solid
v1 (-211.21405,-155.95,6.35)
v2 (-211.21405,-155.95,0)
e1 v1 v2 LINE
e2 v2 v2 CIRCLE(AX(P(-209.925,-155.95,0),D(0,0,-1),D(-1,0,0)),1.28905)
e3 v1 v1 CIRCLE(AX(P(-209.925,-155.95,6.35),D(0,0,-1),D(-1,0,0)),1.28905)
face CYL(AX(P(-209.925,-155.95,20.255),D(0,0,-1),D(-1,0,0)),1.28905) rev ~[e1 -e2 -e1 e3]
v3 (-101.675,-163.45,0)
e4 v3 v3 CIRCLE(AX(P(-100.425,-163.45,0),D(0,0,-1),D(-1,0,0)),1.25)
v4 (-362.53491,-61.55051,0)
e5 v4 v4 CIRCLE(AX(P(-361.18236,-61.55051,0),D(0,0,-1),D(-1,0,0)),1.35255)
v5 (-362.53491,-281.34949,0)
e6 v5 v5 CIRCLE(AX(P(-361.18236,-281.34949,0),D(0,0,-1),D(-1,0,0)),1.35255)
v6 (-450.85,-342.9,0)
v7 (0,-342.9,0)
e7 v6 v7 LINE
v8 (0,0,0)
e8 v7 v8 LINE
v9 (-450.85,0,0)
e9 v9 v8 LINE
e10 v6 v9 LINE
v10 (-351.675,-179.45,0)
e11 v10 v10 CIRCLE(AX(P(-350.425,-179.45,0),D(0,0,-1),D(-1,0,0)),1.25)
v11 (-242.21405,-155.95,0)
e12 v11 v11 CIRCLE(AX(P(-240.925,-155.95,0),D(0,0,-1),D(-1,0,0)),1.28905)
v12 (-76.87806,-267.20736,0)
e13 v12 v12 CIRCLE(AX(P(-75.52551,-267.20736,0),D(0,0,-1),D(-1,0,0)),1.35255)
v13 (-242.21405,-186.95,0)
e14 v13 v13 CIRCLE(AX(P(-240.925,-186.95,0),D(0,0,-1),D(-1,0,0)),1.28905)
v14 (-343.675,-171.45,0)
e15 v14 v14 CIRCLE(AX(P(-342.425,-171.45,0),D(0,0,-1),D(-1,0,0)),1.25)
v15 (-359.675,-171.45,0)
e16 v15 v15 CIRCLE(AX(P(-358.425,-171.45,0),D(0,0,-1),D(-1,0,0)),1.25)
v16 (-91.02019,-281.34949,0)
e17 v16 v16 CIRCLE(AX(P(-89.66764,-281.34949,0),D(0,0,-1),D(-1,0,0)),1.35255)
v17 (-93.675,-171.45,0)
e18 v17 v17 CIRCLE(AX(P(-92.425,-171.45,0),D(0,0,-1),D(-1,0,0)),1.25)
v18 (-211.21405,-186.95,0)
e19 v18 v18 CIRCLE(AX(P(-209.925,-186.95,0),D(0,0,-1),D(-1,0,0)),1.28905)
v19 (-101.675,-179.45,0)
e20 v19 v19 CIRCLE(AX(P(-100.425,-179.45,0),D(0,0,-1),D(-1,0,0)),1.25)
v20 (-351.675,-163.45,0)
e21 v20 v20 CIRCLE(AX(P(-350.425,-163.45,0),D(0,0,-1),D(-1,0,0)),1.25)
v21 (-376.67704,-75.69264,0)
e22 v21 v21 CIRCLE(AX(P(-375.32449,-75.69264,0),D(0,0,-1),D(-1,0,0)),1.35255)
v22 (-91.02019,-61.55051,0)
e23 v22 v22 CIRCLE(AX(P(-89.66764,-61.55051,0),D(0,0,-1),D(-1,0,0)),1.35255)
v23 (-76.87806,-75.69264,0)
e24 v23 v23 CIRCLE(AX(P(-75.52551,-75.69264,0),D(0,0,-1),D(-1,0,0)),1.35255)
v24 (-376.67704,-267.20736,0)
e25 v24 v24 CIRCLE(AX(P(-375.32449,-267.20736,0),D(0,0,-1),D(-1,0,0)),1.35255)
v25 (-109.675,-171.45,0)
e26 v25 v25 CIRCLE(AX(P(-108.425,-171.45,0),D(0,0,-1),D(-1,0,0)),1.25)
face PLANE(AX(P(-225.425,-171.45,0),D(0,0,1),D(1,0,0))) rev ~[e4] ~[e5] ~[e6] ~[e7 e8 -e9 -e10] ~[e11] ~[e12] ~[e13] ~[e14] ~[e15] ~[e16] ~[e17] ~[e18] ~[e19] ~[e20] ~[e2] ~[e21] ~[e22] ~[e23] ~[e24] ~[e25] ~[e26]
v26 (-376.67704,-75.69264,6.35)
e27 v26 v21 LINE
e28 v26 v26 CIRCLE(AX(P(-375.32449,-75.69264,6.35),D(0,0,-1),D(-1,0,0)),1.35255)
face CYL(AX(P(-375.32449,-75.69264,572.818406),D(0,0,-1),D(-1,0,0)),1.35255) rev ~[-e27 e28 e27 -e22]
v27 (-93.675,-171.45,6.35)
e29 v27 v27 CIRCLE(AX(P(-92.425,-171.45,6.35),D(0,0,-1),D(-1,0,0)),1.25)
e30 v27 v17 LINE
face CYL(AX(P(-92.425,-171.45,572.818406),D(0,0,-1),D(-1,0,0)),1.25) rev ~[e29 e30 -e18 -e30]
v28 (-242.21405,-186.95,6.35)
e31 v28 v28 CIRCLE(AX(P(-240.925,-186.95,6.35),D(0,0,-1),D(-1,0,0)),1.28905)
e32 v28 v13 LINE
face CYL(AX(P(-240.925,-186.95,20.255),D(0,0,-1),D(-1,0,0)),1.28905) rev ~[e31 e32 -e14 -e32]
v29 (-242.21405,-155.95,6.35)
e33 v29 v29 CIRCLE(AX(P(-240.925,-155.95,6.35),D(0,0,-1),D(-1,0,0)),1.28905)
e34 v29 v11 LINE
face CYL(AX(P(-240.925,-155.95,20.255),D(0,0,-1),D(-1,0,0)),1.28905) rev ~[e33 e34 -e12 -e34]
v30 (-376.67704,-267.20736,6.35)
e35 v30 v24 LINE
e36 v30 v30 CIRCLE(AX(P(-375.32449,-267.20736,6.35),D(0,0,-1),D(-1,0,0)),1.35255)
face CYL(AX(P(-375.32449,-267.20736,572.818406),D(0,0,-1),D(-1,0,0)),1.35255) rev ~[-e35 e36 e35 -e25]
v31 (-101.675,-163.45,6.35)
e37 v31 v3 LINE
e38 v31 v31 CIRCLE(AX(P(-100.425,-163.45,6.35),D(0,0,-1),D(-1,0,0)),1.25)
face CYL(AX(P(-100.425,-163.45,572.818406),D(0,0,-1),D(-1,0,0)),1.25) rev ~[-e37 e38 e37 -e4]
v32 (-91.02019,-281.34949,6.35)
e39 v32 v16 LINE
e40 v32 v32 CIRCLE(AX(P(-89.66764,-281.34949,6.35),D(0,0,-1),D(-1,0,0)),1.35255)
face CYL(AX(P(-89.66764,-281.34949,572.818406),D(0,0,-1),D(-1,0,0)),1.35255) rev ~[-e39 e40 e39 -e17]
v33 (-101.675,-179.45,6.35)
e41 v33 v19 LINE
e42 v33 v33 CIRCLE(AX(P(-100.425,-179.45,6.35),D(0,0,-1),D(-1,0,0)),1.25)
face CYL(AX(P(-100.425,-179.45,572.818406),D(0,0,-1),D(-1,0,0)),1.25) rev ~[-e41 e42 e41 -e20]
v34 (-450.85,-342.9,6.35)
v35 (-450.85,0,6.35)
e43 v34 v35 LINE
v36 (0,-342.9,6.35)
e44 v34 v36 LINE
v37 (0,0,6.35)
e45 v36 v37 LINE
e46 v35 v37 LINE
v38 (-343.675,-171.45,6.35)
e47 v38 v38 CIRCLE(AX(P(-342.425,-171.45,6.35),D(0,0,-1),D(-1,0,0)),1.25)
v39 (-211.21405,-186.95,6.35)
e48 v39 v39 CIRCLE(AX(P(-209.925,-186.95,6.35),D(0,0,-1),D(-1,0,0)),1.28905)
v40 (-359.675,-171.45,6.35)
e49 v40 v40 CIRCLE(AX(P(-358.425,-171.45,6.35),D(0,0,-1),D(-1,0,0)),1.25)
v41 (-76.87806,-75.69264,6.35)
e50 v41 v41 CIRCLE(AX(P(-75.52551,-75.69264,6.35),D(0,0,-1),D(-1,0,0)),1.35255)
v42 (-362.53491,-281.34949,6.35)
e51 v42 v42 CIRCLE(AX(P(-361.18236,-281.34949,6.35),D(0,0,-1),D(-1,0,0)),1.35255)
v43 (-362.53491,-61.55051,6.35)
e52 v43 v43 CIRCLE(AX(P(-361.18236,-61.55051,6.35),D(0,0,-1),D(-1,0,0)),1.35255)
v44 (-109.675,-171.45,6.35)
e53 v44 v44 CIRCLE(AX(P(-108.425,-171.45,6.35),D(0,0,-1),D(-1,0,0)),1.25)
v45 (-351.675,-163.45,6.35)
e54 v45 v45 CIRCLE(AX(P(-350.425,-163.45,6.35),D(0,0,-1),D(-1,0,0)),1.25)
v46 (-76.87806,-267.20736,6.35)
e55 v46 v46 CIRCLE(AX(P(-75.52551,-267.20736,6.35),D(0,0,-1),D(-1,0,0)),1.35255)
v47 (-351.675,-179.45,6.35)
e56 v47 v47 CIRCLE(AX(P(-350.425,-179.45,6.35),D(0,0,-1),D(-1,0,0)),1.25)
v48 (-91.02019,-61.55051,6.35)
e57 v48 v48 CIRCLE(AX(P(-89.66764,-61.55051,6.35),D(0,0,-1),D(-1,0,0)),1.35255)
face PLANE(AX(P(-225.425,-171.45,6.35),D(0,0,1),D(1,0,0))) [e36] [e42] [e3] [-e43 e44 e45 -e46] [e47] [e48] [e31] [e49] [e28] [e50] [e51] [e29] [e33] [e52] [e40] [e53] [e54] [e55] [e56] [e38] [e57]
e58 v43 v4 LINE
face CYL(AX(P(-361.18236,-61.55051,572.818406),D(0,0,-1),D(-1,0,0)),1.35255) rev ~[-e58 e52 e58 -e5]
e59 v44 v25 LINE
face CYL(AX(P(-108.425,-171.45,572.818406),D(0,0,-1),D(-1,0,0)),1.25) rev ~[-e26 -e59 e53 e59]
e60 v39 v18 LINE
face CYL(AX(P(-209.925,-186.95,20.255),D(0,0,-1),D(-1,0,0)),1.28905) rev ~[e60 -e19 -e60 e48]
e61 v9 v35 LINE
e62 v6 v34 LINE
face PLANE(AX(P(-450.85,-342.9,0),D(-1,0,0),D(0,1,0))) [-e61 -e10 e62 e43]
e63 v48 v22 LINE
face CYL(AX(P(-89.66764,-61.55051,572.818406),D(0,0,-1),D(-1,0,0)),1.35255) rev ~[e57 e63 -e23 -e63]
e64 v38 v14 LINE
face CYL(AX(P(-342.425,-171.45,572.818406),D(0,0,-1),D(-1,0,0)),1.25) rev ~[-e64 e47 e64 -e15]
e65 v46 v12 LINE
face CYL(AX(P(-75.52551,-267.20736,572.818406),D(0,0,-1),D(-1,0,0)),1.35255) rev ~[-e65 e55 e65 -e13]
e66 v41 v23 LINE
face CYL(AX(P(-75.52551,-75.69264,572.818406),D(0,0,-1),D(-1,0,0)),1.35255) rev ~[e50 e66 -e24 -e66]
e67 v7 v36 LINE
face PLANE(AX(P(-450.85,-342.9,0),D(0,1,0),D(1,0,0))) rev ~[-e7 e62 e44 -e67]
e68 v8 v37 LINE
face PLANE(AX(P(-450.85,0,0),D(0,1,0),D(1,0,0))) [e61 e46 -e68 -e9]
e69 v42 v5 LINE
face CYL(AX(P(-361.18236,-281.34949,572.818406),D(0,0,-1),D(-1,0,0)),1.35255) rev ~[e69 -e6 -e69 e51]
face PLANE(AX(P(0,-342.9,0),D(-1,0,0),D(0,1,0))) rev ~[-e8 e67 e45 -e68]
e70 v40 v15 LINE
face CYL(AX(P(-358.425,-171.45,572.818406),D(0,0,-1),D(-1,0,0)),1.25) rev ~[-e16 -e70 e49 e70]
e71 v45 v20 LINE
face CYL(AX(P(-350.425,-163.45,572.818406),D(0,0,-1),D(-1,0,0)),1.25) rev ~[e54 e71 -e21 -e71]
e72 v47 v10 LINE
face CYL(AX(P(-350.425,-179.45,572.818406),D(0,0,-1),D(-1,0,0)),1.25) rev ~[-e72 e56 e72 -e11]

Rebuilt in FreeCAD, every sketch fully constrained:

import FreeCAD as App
import Part
import Sketcher
Q = App.Units.Quantity

doc = App.newDocument("Part")
body = doc.addObject("PartDesign::Body", "Body")

# Sketch on XY plane
sketch1 = body.newObject("Sketcher::SketchObject", "Sketch")
sketch1.AttachmentSupport = (doc.getObject("XY_Plane"), [""])
sketch1.MapMode = "FlatFace"
sketch1.addGeometry([
    Part.LineSegment(App.Vector(-451, 0, 0), App.Vector(-451, -343, 0)),
    Part.LineSegment(App.Vector(-451, -343, 0), App.Vector(0, -343, 0)),
    Part.LineSegment(App.Vector(0, -343, 0), App.Vector(0, 0, 0)),
    Part.LineSegment(App.Vector(0, 0, 0), App.Vector(-451, 0, 0)),
], False)
sketch1.addConstraint([
    Sketcher.Constraint("Coincident", 0, 2, 1, 1),
    Sketcher.Constraint("Coincident", 1, 2, 2, 1),
    Sketcher.Constraint("Coincident", 2, 2, 3, 1),
    Sketcher.Constraint("Coincident", 3, 2, 0, 1),
    Sketcher.Constraint("Vertical", 0),
    Sketcher.Constraint("Horizontal", 1),
    Sketcher.Constraint("Vertical", 2),
    Sketcher.Constraint("Horizontal", 3),
    Sketcher.Constraint("Coincident", 2, 2, -1, 1),
    Sketcher.Constraint("DistanceY", 0, 2, 0, 1, Q("13.5 in")),
    Sketcher.Constraint("DistanceX", 1, 1, 1, 2, Q("17.75 in")),
])
pad1 = body.newObject("PartDesign::Pad", "Pad")
pad1.Profile = sketch1
pad1.Length = Q("0.25 in")

# Sketch on XY plane
sketch2 = body.newObject("Sketcher::SketchObject", "Sketch001")
sketch2.AttachmentSupport = (doc.getObject("XY_Plane"), [""])
sketch2.MapMode = "FlatFace"
sketch2.AttachmentOffset = App.Placement(App.Vector(0, 0, 0.25 * 25.4), App.Rotation())
sketch2.addGeometry([
    Part.Circle(App.Vector(-240.9, -155.9, 0), App.Vector(0, 0, 1), 1.3),
    Part.Circle(App.Vector(-209.9, -155.9, 0), App.Vector(0, 0, 1), 1.3),
    Part.Circle(App.Vector(-209.9, -186.9, 0), App.Vector(0, 0, 1), 1.3),
    Part.Circle(App.Vector(-240.9, -186.9, 0), App.Vector(0, 0, 1), 1.3),
], False)
sketch2.addConstraint([
    Sketcher.Constraint("Equal", 0, 1),
    Sketcher.Constraint("Equal", 1, 2),
    Sketcher.Constraint("Equal", 2, 3),
    Sketcher.Constraint("Horizontal", 0, 3, 1, 3),
    Sketcher.Constraint("Horizontal", 2, 3, 3, 3),
    Sketcher.Constraint("Vertical", 1, 3, 2, 3),
    Sketcher.Constraint("Vertical", 0, 3, 3, 3),
    Sketcher.Constraint("Diameter", 0, Q("0.1015 in")),
    Sketcher.Constraint("DistanceX", 0, 3, -1, 1, 240.925),
    Sketcher.Constraint("DistanceY", 0, 3, -1, 1, 155.95),
    Sketcher.Constraint("DistanceX", 1, 3, -1, 1, 209.925),
    Sketcher.Constraint("DistanceY", 2, 3, -1, 1, 186.95),
])
doc.recompute()
hole = body.newObject("PartDesign::Hole", "Hole")
hole.Profile = sketch2
hole.ThreadType = "None"
hole.Diameter = Q("0.1015 in")
hole.DepthType = "Dimension"
hole.Depth = 13.905
hole.DrillPoint = "Angled"
hole.DrillPointAngle = 118

# Sketch on XY plane
sketch3 = body.newObject("Sketcher::SketchObject", "Sketch002")
sketch3.AttachmentSupport = (doc.getObject("XY_Plane"), [""])
sketch3.MapMode = "FlatFace"
sketch3.AttachmentOffset = App.Placement(App.Vector(0, 0, 0.25 * 25.4), App.Rotation())
sketch3.addGeometry([
    Part.Circle(App.Vector(-342.4, -171.4, 0), App.Vector(0, 0, 1), 1.2),
    Part.Circle(App.Vector(-358.4, -171.4, 0), App.Vector(0, 0, 1), 1.2),
    Part.Circle(App.Vector(-350.4, -163.4, 0), App.Vector(0, 0, 1), 1.2),
    Part.Circle(App.Vector(-350.4, -179.4, 0), App.Vector(0, 0, 1), 1.2),
], False)
sketch3.addConstraint([
    Sketcher.Constraint("Equal", 0, 1),
    Sketcher.Constraint("Equal", 1, 2),
    Sketcher.Constraint("Equal", 2, 3),
    Sketcher.Constraint("Horizontal", 0, 3, 1, 3),
    Sketcher.Constraint("Vertical", 2, 3, 3, 3),
    Sketcher.Constraint("Diameter", 0, 2.5),
    Sketcher.Constraint("DistanceY", 0, 3, -1, 1, Q("6.75 in")),
    Sketcher.Constraint("DistanceX", 0, 3, -1, 1, 342.425),
    Sketcher.Constraint("DistanceX", 1, 3, -1, 1, 358.425),
    Sketcher.Constraint("DistanceX", 2, 3, -1, 1, 350.425),
    Sketcher.Constraint("DistanceY", 2, 3, -1, 1, 163.45),
    Sketcher.Constraint("DistanceY", 3, 3, -1, 1, 179.45),
])
doc.recompute()
hole2 = body.newObject("PartDesign::Hole", "Hole001")
hole2.Profile = sketch3
hole2.ThreadType = "None"
hole2.Diameter = 2.5
hole2.DepthType = "ThroughAll"

# Sketch on XY plane
sketch4 = body.newObject("Sketcher::SketchObject", "Sketch003")
sketch4.AttachmentSupport = (doc.getObject("XY_Plane"), [""])
sketch4.MapMode = "FlatFace"
sketch4.AttachmentOffset = App.Placement(App.Vector(0, 0, 0.25 * 25.4), App.Rotation())
sketch4.addGeometry([
    Part.Circle(App.Vector(-100.4, -163.4, 0), App.Vector(0, 0, 1), 1.2),
    Part.Circle(App.Vector(-108.4, -171.4, 0), App.Vector(0, 0, 1), 1.2),
    Part.Circle(App.Vector(-100.4, -179.4, 0), App.Vector(0, 0, 1), 1.2),
    Part.Circle(App.Vector(-92.4, -171.4, 0), App.Vector(0, 0, 1), 1.2),
], False)
sketch4.addConstraint([
    Sketcher.Constraint("Equal", 0, 1),
    Sketcher.Constraint("Equal", 1, 2),
    Sketcher.Constraint("Equal", 2, 3),
    Sketcher.Constraint("Horizontal", 1, 3, 3, 3),
    Sketcher.Constraint("Vertical", 0, 3, 2, 3),
    Sketcher.Constraint("Diameter", 0, 2.5),
    Sketcher.Constraint("DistanceY", 1, 3, -1, 1, Q("6.75 in")),
    Sketcher.Constraint("DistanceX", 0, 3, -1, 1, 100.425),
    Sketcher.Constraint("DistanceY", 0, 3, -1, 1, 163.45),
    Sketcher.Constraint("DistanceX", 1, 3, -1, 1, 108.425),
    Sketcher.Constraint("DistanceY", 2, 3, -1, 1, 179.45),
    Sketcher.Constraint("DistanceX", 3, 3, -1, 1, 92.425),
])
doc.recompute()
hole3 = body.newObject("PartDesign::Hole", "Hole002")
hole3.Profile = sketch4
hole3.ThreadType = "None"
hole3.Diameter = 2.5
hole3.DepthType = "ThroughAll"

# Sketch on XY plane
sketch5 = body.newObject("Sketcher::SketchObject", "Sketch004")
sketch5.AttachmentSupport = (doc.getObject("XY_Plane"), [""])
sketch5.MapMode = "FlatFace"
sketch5.AttachmentOffset = App.Placement(App.Vector(0, 0, 0.25 * 25.4), App.Rotation())
sketch5.addGeometry([
    Part.Circle(App.Vector(-361.2, -61.6, 0), App.Vector(0, 0, 1), 1.4),  # 0
    Part.Circle(App.Vector(-375.3, -75.7, 0), App.Vector(0, 0, 1), 1.4),  # 1
    Part.Circle(App.Vector(-89.7, -61.6, 0), App.Vector(0, 0, 1), 1.4),  # 2
    Part.Circle(App.Vector(-75.5, -75.7, 0), App.Vector(0, 0, 1), 1.4),  # 3
    Part.Circle(App.Vector(-75.5, -267.2, 0), App.Vector(0, 0, 1), 1.4),  # 4
    Part.Circle(App.Vector(-89.7, -281.3, 0), App.Vector(0, 0, 1), 1.4),  # 5
    Part.Circle(App.Vector(-361.2, -281.3, 0), App.Vector(0, 0, 1), 1.4),  # 6
    Part.Circle(App.Vector(-375.3, -267.2, 0), App.Vector(0, 0, 1), 1.4),  # 7
], False)
sketch5.addConstraint([
    Sketcher.Constraint("Equal", 0, 1),
    Sketcher.Constraint("Equal", 1, 2),
    Sketcher.Constraint("Equal", 2, 3),
    Sketcher.Constraint("Equal", 3, 4),
    Sketcher.Constraint("Equal", 4, 5),
    Sketcher.Constraint("Equal", 5, 6),
    Sketcher.Constraint("Equal", 6, 7),
    Sketcher.Constraint("Horizontal", 0, 3, 2, 3),
    Sketcher.Constraint("Horizontal", 1, 3, 3, 3),
    Sketcher.Constraint("Horizontal", 5, 3, 6, 3),
    Sketcher.Constraint("Horizontal", 4, 3, 7, 3),
    Sketcher.Constraint("Vertical", 3, 3, 4, 3),
    Sketcher.Constraint("Vertical", 2, 3, 5, 3),
    Sketcher.Constraint("Vertical", 0, 3, 6, 3),
    Sketcher.Constraint("Vertical", 1, 3, 7, 3),
    Sketcher.Constraint("Diameter", 0, Q("0.1065 in")),
    Sketcher.Constraint("DistanceX", 0, 3, -1, 1, 361.18236),
    Sketcher.Constraint("DistanceY", 0, 3, -1, 1, 61.55051),
    Sketcher.Constraint("DistanceX", 1, 3, -1, 1, 375.32449),
    Sketcher.Constraint("DistanceY", 1, 3, -1, 1, 75.69264),
    Sketcher.Constraint("DistanceX", 2, 3, -1, 1, 89.66764),
    Sketcher.Constraint("DistanceX", 3, 3, -1, 1, 75.52551),
    Sketcher.Constraint("DistanceY", 4, 3, -1, 1, 267.20736),
    Sketcher.Constraint("DistanceY", 5, 3, -1, 1, 281.34949),
])
doc.recompute()
hole4 = body.newObject("PartDesign::Hole", "Hole003")
hole4.Profile = sketch5
hole4.ThreadType = "None"
hole4.Diameter = Q("0.1065 in")
hole4.DepthType = "ThroughAll"

doc.recompute()
